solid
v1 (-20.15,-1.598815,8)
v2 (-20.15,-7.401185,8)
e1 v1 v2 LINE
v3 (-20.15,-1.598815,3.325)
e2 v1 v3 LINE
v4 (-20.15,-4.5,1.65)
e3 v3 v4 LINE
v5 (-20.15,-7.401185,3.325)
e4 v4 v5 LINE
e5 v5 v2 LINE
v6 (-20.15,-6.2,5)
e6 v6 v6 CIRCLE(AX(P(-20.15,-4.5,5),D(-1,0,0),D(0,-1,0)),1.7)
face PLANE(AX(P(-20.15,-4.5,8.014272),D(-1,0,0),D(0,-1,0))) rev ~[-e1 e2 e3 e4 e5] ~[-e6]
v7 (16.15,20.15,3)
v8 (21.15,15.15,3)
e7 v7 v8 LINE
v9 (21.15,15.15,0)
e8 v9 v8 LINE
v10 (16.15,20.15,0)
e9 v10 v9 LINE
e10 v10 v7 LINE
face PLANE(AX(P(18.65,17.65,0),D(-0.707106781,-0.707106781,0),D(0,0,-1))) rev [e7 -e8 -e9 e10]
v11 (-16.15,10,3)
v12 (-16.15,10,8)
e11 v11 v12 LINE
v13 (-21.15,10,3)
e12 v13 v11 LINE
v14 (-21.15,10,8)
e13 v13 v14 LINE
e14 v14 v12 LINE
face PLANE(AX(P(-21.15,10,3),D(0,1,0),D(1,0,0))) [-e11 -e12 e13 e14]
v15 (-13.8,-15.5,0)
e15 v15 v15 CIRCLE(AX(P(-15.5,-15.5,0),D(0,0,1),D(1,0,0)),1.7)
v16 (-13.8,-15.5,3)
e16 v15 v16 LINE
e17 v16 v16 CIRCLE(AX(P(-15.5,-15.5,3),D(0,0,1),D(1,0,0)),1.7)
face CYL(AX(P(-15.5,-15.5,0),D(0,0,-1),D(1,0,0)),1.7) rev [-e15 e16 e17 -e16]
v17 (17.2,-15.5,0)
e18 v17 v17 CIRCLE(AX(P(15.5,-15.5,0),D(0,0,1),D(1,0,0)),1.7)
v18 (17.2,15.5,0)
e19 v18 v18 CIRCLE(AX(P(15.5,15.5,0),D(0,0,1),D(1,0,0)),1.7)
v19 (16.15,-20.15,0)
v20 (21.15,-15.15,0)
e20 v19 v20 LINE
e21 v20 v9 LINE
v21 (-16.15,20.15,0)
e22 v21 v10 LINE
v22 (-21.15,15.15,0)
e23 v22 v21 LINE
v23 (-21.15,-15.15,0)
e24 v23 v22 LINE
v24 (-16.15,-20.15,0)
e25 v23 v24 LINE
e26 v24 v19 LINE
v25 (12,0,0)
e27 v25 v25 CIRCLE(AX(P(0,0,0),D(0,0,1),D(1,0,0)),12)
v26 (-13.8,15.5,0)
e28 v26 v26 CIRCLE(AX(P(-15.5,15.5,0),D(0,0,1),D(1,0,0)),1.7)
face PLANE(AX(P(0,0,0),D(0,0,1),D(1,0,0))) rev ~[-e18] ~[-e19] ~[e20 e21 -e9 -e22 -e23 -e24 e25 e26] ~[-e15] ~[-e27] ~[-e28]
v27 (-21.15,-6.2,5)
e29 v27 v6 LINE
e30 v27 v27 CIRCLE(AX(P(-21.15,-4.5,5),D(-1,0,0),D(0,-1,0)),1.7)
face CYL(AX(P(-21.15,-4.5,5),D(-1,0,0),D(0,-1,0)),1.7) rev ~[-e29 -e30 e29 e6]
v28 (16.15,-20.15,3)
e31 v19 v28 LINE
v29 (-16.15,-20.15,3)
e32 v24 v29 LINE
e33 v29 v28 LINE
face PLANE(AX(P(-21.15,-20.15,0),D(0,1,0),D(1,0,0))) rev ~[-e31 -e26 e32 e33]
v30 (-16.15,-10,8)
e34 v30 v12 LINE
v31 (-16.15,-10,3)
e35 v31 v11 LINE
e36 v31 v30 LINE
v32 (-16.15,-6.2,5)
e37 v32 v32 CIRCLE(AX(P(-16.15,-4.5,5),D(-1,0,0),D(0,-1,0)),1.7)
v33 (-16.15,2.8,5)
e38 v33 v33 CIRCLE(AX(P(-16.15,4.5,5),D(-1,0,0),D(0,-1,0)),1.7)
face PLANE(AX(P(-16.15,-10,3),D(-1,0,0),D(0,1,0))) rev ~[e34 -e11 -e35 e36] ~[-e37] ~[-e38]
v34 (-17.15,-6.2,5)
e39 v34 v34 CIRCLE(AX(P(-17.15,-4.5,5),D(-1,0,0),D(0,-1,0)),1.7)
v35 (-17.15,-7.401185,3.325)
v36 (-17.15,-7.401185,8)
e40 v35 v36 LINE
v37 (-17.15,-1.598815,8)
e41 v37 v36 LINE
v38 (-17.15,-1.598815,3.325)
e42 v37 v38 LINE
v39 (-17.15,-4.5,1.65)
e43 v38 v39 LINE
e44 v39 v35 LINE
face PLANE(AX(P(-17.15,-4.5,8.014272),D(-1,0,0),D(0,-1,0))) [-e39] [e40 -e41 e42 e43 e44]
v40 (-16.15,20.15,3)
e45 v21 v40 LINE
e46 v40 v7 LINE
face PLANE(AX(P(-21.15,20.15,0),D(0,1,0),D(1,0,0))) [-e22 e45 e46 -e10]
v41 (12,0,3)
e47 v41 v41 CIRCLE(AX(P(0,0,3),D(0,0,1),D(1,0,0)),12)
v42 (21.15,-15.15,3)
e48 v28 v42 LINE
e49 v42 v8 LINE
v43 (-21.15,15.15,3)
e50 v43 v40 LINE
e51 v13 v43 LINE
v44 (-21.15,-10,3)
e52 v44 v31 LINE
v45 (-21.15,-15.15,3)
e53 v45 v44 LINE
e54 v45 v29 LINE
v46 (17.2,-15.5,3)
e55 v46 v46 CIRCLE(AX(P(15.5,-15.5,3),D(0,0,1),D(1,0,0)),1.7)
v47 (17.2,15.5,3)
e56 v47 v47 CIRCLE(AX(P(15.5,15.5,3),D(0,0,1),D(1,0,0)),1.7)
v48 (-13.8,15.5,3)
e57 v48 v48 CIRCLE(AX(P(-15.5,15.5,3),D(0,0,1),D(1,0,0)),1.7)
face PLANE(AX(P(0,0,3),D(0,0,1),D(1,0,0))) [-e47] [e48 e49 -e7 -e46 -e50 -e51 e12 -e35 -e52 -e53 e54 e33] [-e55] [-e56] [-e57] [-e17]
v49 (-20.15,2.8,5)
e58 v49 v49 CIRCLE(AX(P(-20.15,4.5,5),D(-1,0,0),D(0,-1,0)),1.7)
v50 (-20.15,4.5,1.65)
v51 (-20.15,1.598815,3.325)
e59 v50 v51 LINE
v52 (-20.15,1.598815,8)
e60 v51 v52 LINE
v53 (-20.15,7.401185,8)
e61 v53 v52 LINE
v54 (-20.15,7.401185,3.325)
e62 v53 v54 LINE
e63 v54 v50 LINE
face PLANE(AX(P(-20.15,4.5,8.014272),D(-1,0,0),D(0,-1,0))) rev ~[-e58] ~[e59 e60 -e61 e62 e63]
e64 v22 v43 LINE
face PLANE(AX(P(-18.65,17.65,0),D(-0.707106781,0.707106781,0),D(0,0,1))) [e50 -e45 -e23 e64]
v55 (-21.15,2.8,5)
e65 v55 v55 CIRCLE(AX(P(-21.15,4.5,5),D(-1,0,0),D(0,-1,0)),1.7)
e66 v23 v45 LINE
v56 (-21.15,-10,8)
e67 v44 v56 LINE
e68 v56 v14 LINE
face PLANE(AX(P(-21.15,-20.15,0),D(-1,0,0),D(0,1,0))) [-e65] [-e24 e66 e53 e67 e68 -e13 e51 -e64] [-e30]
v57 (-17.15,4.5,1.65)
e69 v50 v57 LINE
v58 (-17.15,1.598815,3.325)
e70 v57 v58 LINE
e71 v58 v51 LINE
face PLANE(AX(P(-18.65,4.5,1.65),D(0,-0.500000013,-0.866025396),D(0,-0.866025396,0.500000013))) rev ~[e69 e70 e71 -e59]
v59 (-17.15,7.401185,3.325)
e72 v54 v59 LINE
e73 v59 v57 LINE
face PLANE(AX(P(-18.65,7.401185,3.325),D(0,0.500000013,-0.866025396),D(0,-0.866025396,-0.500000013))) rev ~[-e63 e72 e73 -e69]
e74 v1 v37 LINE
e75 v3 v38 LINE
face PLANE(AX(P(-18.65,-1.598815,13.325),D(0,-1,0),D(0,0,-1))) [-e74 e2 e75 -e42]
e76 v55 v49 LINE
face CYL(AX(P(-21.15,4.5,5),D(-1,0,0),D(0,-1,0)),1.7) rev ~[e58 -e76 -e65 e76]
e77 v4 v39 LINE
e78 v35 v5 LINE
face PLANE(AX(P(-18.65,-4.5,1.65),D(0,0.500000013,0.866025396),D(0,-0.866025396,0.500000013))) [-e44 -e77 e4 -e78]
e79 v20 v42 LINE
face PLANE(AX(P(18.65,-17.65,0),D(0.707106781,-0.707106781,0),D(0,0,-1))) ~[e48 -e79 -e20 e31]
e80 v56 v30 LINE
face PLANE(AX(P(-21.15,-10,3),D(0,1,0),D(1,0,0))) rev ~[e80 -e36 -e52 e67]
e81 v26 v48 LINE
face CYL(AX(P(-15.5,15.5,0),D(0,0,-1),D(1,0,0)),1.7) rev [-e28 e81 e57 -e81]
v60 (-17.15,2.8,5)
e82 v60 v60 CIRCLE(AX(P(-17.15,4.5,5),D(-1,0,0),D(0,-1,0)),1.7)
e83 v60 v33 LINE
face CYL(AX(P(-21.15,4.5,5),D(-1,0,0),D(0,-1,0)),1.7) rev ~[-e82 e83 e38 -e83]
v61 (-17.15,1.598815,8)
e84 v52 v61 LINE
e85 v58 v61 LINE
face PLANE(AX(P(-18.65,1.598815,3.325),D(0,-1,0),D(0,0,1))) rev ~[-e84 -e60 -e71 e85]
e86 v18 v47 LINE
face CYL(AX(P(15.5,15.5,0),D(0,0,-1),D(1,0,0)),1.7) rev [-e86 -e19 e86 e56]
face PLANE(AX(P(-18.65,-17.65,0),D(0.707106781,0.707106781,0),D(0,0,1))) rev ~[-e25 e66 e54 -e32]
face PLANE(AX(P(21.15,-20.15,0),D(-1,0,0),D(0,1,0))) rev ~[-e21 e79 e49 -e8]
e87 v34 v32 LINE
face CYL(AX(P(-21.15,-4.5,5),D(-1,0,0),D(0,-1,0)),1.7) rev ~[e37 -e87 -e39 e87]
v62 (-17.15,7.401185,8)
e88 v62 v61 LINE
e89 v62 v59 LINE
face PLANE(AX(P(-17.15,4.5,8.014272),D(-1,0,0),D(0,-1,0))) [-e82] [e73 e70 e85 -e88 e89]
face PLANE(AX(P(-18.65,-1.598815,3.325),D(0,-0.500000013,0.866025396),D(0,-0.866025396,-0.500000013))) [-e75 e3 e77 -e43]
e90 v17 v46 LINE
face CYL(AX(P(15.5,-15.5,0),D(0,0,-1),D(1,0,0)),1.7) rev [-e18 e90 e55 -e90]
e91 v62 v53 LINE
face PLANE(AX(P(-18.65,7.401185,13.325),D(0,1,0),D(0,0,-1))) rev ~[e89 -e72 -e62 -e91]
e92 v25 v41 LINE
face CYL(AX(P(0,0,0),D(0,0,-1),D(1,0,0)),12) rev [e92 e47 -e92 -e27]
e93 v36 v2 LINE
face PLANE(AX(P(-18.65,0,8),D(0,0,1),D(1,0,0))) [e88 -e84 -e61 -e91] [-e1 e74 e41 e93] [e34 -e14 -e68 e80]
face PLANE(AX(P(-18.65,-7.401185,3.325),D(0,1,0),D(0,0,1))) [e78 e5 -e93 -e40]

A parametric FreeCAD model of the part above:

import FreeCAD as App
import Part
import Sketcher
Q = App.Units.Quantity


def edges_at(feature, points):
    """Names of the edges that pass closest to the given points."""
    edges = feature.Shape.Edges
    near = lambda p: min(range(len(edges)), key=lambda i: edges[i].distToShape(Part.Vertex(*p))[0])
    return sorted({f"Edge{near(p) + 1}" for p in points})


def add_polygon(sketch, points):
    """Adds a closed chain of lines whose ends are joined by coincident constraints."""
    first, n = sketch.GeometryCount, len(points)
    for a, b in zip(points, points[1:] + points[:1]):
        sketch.addGeometry(Part.LineSegment(App.Vector(*a, 0), App.Vector(*b, 0)), False)
    for i in range(n):
        sketch.addConstraint(Sketcher.Constraint("Coincident", first + i, 2, first + (i + 1) % n, 1))

doc = App.newDocument("Part")
body = doc.addObject("PartDesign::Body", "Body")

sketch1 = body.newObject("Sketcher::SketchObject", "Sketch")
sketch1.AttachmentSupport = (doc.getObject("XY_Plane"), [""])
sketch1.MapMode = "FlatFace"
add_polygon(sketch1, [(-21.1, 20.1), (-21.1, -20.1), (21.1, -20.1), (21.1, 20.1)])
sketch1.addGeometry(Part.Circle(App.Vector(-15.5, -15.5, 0), App.Vector(0, 0, 1), 1.7), False)
sketch1.addGeometry(Part.Circle(App.Vector(15.5, -15.5, 0), App.Vector(0, 0, 1), 1.7), False)
sketch1.addGeometry(Part.Circle(App.Vector(-15.5, 15.5, 0), App.Vector(0, 0, 1), 1.7), False)
sketch1.addGeometry(Part.Circle(App.Vector(0, 0, 0), App.Vector(0, 0, 1), 12), False)
sketch1.addGeometry(Part.Circle(App.Vector(15.5, 15.5, 0), App.Vector(0, 0, 1), 1.7), False)
sketch1.addConstraint(Sketcher.Constraint("Vertical", 0))
sketch1.addConstraint(Sketcher.Constraint("Horizontal", 1))
sketch1.addConstraint(Sketcher.Constraint("Vertical", 2))
sketch1.addConstraint(Sketcher.Constraint("Horizontal", 3))
sketch1.addConstraint(Sketcher.Constraint("Coincident", 7, 3, -1, 1))
sketch1.addConstraint(Sketcher.Constraint("Equal", 4, 5))
sketch1.addConstraint(Sketcher.Constraint("Equal", 5, 6))
sketch1.addConstraint(Sketcher.Constraint("Equal", 6, 8))
sketch1.addConstraint(Sketcher.Constraint("Symmetric", 5, 3, 6, 3, -1, 1))
sketch1.addConstraint(Sketcher.Constraint("Symmetric", 4, 3, 8, 3, -1, 1))
sketch1.addConstraint(Sketcher.Constraint("Symmetric", 0, 2, 2, 2, -1, 1))
sketch1.addConstraint(Sketcher.Constraint("Symmetric", 4, 3, 5, 3, -2))
sketch1.addConstraint(Sketcher.Constraint("Diameter", 7, 24.0))
sketch1.addConstraint(Sketcher.Constraint("Diameter", 4, 3.4))
sketch1.addConstraint(Sketcher.Constraint("DistanceX", 1, 1, 1, 2, 42.3))
sketch1.addConstraint(Sketcher.Constraint("DistanceY", 0, 2, 0, 1, 40.3))
sketch1.addConstraint(Sketcher.Constraint("DistanceX", 4, 3, 5, 3, 31.0))
sketch1.addConstraint(Sketcher.Constraint("DistanceY", 4, 3, 6, 3, 31.0))
pad1 = body.newObject("PartDesign::Pad", "Pad")
pad1.Profile = sketch1
pad1.Length = 3
doc.recompute()

chamfer = body.newObject("PartDesign::Chamfer", "Chamfer")
chamfer.Base = (pad1, edges_at(pad1, [
    (21.15, -20.15, 1.5),
    (-21.15, -20.15, 1.5),
    (21.15, 20.15, 1.5),
    (-21.15, 20.15, 1.5),
]))
chamfer.Size = 5

sketch2 = body.newObject("Sketcher::SketchObject", "Sketch001")
sketch2.AttachmentSupport = (doc.getObject("XY_Plane"), [""])
sketch2.MapMode = "FlatFace"
sketch2.AttachmentOffset = App.Placement(App.Vector(0, 0, 3), App.Rotation())
add_polygon(sketch2, [(-21, 10), (-21, -10), (-16, -10), (-16, 10)])
sketch2.addConstraint(Sketcher.Constraint("Vertical", 0))
sketch2.addConstraint(Sketcher.Constraint("Horizontal", 1))
sketch2.addConstraint(Sketcher.Constraint("Vertical", 2))
sketch2.addConstraint(Sketcher.Constraint("Horizontal", 3))
sketch2.addConstraint(Sketcher.Constraint("DistanceX", 1, 1, 1, 2, 5.0))
sketch2.addConstraint(Sketcher.Constraint("DistanceY", 0, 2, 0, 1, 20.0))
sketch2.addConstraint(Sketcher.Constraint("DistanceY", 0, 2, -1, 1, 10.0))
sketch2.addConstraint(Sketcher.Constraint("DistanceX", 0, 2, -1, 1, 21.15))
pad2 = body.newObject("PartDesign::Pad", "Pad001")
pad2.Profile = sketch2
pad2.Length = 5

sketch3 = body.newObject("Sketcher::SketchObject", "Sketch002")
sketch3.AttachmentSupport = (doc.getObject("YZ_Plane"), [""])
sketch3.MapMode = "FlatFace"
sketch3.AttachmentOffset = App.Placement(App.Vector(0, 0, -21.15), App.Rotation())
sketch3.addGeometry(Part.Circle(App.Vector(4.5, 5, 0), App.Vector(0, 0, 1), 1.7), False)
sketch3.addGeometry(Part.Circle(App.Vector(-4.5, 5, 0), App.Vector(0, 0, 1), 1.7), False)
sketch3.addConstraint(Sketcher.Constraint("Equal", 0, 1))
sketch3.addConstraint(Sketcher.Constraint("Symmetric", 0, 3, 1, 3, -2))
sketch3.addConstraint(Sketcher.Constraint("Diameter", 0, 3.4))
sketch3.addConstraint(Sketcher.Constraint("DistanceY", -1, 1, 0, 3, 5.0))
sketch3.addConstraint(Sketcher.Constraint("DistanceX", 1, 3, 0, 3, 9.0))
pocket1 = body.newObject("PartDesign::Pocket", "Pocket")
pocket1.Profile = sketch3
pocket1.Type = "ThroughAll"
pocket1.Reversed = True

sketch4 = body.newObject("Sketcher::SketchObject", "Sketch003")
sketch4.AttachmentSupport = (doc.getObject("YZ_Plane"), [""])
sketch4.MapMode = "FlatFace"
sketch4.AttachmentOffset = App.Placement(App.Vector(0, 0, -18.65), App.Rotation())
add_polygon(sketch4, [(-4.5, 1.6), (-7.4, 3.3), (-7.4, 13.3), (-1.6, 13.3), (-1.6, 3.3)])
add_polygon(sketch4, [(4.5, 1.6), (1.6, 3.3), (1.6, 13.3), (7.4, 13.3), (7.4, 3.3)])
sketch4.addConstraint(Sketcher.Constraint("Vertical", 1))
sketch4.addConstraint(Sketcher.Constraint("Horizontal", 2))
sketch4.addConstraint(Sketcher.Constraint("Vertical", 3))
sketch4.addConstraint(Sketcher.Constraint("Vertical", 6))
sketch4.addConstraint(Sketcher.Constraint("Horizontal", 7))
sketch4.addConstraint(Sketcher.Constraint("Vertical", 8))
sketch4.addConstraint(Sketcher.Constraint("Symmetric", 3, 2, 5, 2, -2))
sketch4.addConstraint(Sketcher.Constraint("Symmetric", 1, 2, 7, 2, -2))
sketch4.addConstraint(Sketcher.Constraint("Symmetric", 4, 2, 9, 2, -2))
sketch4.addConstraint(Sketcher.Constraint("Parallel", 0, 5))
sketch4.addConstraint(Sketcher.Constraint("Parallel", 4, 9))
sketch4.addConstraint(Sketcher.Constraint("Horizontal", 0, 2, 3, 2))
sketch4.addConstraint(Sketcher.Constraint("DistanceY", 1, 1, 1, 2, 10.0))
sketch4.addConstraint(Sketcher.Constraint("Angle", 0, Q("149.999999 deg")))
sketch4.addConstraint(Sketcher.Constraint("DistanceX", 0, 2, 5, 2, 9.0))
sketch4.addConstraint(Sketcher.Constraint("Distance", 0, 3.35))
sketch4.addConstraint(Sketcher.Constraint("DistanceY", -1, 1, 4, 2, 1.65))
pocket2 = body.newObject("PartDesign::Pocket", "Pocket001")
pocket2.Profile = sketch4
pocket2.Length = 3
pocket2.Midplane = True

doc.recompute()
